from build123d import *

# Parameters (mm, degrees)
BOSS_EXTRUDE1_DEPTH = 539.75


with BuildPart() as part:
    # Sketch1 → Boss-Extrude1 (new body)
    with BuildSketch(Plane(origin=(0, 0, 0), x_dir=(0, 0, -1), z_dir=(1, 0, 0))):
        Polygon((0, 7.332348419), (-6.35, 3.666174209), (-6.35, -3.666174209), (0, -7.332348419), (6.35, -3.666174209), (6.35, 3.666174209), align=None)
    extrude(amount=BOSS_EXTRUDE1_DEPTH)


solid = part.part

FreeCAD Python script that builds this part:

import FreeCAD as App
import Part
import Sketcher

V = App.Vector
Q = App.Units.Quantity


def add_polygon(sketch, points):
    """Adds a closed chain of lines whose ends are joined by coincident constraints."""
    first, n = sketch.GeometryCount, len(points)
    for a, b in zip(points, points[1:] + points[:1]):
        sketch.addGeometry(Part.LineSegment(App.Vector(*a, 0), App.Vector(*b, 0)), False)
    for i in range(n):
        sketch.addConstraint(Sketcher.Constraint("Coincident", first + i, 2, first + (i + 1) % n, 1))

doc = App.newDocument("Part")
body = doc.addObject("PartDesign::Body", "Body")

# Sketch on YZ plane
sketch1 = doc.addObject("Sketcher::SketchObject", "Sketch")
body.addObject(sketch1)
sketch1.AttachmentSupport = (doc.YZ_Plane, [""])
sketch1.MapMode = "FlatFace"
add_polygon(sketch1, [(7, 0), (4, 6), (-4, 6), (-7, 0), (-4, -6), (4, -6)])  # lines 0-5
sketch1.addConstraint(Sketcher.Constraint("Horizontal", 1))
sketch1.addConstraint(Sketcher.Constraint("Horizontal", 4))
sketch1.addConstraint(Sketcher.Constraint("Symmetric", 0, 2, 3, 2, -1, 1))
sketch1.addConstraint(Sketcher.Constraint("Symmetric", 2, 2, 5, 2, -1, 1))
sketch1.addConstraint(Sketcher.Constraint("PointOnObject", 2, 2, -1))
sketch1.addConstraint(Sketcher.Constraint("Parallel", 2, 5))
sketch1.addConstraint(Sketcher.Constraint("Vertical", 1, 2, 3, 2))
sketch1.addConstraint(Sketcher.Constraint("Angle", 0, Q("120 deg")))
sketch1.addConstraint(Sketcher.Constraint("DistanceY", 3, 2, 1, 2, Q("0.5 in")))
sketch1.addConstraint(Sketcher.Constraint("DistanceX", 1, 2, 1, 1, 7.332348))
pad1 = doc.addObject("PartDesign::Pad", "Pad")
body.addObject(pad1)
pad1.Profile = sketch1
pad1.Length = Q("21.25 in")

doc.recompute()
